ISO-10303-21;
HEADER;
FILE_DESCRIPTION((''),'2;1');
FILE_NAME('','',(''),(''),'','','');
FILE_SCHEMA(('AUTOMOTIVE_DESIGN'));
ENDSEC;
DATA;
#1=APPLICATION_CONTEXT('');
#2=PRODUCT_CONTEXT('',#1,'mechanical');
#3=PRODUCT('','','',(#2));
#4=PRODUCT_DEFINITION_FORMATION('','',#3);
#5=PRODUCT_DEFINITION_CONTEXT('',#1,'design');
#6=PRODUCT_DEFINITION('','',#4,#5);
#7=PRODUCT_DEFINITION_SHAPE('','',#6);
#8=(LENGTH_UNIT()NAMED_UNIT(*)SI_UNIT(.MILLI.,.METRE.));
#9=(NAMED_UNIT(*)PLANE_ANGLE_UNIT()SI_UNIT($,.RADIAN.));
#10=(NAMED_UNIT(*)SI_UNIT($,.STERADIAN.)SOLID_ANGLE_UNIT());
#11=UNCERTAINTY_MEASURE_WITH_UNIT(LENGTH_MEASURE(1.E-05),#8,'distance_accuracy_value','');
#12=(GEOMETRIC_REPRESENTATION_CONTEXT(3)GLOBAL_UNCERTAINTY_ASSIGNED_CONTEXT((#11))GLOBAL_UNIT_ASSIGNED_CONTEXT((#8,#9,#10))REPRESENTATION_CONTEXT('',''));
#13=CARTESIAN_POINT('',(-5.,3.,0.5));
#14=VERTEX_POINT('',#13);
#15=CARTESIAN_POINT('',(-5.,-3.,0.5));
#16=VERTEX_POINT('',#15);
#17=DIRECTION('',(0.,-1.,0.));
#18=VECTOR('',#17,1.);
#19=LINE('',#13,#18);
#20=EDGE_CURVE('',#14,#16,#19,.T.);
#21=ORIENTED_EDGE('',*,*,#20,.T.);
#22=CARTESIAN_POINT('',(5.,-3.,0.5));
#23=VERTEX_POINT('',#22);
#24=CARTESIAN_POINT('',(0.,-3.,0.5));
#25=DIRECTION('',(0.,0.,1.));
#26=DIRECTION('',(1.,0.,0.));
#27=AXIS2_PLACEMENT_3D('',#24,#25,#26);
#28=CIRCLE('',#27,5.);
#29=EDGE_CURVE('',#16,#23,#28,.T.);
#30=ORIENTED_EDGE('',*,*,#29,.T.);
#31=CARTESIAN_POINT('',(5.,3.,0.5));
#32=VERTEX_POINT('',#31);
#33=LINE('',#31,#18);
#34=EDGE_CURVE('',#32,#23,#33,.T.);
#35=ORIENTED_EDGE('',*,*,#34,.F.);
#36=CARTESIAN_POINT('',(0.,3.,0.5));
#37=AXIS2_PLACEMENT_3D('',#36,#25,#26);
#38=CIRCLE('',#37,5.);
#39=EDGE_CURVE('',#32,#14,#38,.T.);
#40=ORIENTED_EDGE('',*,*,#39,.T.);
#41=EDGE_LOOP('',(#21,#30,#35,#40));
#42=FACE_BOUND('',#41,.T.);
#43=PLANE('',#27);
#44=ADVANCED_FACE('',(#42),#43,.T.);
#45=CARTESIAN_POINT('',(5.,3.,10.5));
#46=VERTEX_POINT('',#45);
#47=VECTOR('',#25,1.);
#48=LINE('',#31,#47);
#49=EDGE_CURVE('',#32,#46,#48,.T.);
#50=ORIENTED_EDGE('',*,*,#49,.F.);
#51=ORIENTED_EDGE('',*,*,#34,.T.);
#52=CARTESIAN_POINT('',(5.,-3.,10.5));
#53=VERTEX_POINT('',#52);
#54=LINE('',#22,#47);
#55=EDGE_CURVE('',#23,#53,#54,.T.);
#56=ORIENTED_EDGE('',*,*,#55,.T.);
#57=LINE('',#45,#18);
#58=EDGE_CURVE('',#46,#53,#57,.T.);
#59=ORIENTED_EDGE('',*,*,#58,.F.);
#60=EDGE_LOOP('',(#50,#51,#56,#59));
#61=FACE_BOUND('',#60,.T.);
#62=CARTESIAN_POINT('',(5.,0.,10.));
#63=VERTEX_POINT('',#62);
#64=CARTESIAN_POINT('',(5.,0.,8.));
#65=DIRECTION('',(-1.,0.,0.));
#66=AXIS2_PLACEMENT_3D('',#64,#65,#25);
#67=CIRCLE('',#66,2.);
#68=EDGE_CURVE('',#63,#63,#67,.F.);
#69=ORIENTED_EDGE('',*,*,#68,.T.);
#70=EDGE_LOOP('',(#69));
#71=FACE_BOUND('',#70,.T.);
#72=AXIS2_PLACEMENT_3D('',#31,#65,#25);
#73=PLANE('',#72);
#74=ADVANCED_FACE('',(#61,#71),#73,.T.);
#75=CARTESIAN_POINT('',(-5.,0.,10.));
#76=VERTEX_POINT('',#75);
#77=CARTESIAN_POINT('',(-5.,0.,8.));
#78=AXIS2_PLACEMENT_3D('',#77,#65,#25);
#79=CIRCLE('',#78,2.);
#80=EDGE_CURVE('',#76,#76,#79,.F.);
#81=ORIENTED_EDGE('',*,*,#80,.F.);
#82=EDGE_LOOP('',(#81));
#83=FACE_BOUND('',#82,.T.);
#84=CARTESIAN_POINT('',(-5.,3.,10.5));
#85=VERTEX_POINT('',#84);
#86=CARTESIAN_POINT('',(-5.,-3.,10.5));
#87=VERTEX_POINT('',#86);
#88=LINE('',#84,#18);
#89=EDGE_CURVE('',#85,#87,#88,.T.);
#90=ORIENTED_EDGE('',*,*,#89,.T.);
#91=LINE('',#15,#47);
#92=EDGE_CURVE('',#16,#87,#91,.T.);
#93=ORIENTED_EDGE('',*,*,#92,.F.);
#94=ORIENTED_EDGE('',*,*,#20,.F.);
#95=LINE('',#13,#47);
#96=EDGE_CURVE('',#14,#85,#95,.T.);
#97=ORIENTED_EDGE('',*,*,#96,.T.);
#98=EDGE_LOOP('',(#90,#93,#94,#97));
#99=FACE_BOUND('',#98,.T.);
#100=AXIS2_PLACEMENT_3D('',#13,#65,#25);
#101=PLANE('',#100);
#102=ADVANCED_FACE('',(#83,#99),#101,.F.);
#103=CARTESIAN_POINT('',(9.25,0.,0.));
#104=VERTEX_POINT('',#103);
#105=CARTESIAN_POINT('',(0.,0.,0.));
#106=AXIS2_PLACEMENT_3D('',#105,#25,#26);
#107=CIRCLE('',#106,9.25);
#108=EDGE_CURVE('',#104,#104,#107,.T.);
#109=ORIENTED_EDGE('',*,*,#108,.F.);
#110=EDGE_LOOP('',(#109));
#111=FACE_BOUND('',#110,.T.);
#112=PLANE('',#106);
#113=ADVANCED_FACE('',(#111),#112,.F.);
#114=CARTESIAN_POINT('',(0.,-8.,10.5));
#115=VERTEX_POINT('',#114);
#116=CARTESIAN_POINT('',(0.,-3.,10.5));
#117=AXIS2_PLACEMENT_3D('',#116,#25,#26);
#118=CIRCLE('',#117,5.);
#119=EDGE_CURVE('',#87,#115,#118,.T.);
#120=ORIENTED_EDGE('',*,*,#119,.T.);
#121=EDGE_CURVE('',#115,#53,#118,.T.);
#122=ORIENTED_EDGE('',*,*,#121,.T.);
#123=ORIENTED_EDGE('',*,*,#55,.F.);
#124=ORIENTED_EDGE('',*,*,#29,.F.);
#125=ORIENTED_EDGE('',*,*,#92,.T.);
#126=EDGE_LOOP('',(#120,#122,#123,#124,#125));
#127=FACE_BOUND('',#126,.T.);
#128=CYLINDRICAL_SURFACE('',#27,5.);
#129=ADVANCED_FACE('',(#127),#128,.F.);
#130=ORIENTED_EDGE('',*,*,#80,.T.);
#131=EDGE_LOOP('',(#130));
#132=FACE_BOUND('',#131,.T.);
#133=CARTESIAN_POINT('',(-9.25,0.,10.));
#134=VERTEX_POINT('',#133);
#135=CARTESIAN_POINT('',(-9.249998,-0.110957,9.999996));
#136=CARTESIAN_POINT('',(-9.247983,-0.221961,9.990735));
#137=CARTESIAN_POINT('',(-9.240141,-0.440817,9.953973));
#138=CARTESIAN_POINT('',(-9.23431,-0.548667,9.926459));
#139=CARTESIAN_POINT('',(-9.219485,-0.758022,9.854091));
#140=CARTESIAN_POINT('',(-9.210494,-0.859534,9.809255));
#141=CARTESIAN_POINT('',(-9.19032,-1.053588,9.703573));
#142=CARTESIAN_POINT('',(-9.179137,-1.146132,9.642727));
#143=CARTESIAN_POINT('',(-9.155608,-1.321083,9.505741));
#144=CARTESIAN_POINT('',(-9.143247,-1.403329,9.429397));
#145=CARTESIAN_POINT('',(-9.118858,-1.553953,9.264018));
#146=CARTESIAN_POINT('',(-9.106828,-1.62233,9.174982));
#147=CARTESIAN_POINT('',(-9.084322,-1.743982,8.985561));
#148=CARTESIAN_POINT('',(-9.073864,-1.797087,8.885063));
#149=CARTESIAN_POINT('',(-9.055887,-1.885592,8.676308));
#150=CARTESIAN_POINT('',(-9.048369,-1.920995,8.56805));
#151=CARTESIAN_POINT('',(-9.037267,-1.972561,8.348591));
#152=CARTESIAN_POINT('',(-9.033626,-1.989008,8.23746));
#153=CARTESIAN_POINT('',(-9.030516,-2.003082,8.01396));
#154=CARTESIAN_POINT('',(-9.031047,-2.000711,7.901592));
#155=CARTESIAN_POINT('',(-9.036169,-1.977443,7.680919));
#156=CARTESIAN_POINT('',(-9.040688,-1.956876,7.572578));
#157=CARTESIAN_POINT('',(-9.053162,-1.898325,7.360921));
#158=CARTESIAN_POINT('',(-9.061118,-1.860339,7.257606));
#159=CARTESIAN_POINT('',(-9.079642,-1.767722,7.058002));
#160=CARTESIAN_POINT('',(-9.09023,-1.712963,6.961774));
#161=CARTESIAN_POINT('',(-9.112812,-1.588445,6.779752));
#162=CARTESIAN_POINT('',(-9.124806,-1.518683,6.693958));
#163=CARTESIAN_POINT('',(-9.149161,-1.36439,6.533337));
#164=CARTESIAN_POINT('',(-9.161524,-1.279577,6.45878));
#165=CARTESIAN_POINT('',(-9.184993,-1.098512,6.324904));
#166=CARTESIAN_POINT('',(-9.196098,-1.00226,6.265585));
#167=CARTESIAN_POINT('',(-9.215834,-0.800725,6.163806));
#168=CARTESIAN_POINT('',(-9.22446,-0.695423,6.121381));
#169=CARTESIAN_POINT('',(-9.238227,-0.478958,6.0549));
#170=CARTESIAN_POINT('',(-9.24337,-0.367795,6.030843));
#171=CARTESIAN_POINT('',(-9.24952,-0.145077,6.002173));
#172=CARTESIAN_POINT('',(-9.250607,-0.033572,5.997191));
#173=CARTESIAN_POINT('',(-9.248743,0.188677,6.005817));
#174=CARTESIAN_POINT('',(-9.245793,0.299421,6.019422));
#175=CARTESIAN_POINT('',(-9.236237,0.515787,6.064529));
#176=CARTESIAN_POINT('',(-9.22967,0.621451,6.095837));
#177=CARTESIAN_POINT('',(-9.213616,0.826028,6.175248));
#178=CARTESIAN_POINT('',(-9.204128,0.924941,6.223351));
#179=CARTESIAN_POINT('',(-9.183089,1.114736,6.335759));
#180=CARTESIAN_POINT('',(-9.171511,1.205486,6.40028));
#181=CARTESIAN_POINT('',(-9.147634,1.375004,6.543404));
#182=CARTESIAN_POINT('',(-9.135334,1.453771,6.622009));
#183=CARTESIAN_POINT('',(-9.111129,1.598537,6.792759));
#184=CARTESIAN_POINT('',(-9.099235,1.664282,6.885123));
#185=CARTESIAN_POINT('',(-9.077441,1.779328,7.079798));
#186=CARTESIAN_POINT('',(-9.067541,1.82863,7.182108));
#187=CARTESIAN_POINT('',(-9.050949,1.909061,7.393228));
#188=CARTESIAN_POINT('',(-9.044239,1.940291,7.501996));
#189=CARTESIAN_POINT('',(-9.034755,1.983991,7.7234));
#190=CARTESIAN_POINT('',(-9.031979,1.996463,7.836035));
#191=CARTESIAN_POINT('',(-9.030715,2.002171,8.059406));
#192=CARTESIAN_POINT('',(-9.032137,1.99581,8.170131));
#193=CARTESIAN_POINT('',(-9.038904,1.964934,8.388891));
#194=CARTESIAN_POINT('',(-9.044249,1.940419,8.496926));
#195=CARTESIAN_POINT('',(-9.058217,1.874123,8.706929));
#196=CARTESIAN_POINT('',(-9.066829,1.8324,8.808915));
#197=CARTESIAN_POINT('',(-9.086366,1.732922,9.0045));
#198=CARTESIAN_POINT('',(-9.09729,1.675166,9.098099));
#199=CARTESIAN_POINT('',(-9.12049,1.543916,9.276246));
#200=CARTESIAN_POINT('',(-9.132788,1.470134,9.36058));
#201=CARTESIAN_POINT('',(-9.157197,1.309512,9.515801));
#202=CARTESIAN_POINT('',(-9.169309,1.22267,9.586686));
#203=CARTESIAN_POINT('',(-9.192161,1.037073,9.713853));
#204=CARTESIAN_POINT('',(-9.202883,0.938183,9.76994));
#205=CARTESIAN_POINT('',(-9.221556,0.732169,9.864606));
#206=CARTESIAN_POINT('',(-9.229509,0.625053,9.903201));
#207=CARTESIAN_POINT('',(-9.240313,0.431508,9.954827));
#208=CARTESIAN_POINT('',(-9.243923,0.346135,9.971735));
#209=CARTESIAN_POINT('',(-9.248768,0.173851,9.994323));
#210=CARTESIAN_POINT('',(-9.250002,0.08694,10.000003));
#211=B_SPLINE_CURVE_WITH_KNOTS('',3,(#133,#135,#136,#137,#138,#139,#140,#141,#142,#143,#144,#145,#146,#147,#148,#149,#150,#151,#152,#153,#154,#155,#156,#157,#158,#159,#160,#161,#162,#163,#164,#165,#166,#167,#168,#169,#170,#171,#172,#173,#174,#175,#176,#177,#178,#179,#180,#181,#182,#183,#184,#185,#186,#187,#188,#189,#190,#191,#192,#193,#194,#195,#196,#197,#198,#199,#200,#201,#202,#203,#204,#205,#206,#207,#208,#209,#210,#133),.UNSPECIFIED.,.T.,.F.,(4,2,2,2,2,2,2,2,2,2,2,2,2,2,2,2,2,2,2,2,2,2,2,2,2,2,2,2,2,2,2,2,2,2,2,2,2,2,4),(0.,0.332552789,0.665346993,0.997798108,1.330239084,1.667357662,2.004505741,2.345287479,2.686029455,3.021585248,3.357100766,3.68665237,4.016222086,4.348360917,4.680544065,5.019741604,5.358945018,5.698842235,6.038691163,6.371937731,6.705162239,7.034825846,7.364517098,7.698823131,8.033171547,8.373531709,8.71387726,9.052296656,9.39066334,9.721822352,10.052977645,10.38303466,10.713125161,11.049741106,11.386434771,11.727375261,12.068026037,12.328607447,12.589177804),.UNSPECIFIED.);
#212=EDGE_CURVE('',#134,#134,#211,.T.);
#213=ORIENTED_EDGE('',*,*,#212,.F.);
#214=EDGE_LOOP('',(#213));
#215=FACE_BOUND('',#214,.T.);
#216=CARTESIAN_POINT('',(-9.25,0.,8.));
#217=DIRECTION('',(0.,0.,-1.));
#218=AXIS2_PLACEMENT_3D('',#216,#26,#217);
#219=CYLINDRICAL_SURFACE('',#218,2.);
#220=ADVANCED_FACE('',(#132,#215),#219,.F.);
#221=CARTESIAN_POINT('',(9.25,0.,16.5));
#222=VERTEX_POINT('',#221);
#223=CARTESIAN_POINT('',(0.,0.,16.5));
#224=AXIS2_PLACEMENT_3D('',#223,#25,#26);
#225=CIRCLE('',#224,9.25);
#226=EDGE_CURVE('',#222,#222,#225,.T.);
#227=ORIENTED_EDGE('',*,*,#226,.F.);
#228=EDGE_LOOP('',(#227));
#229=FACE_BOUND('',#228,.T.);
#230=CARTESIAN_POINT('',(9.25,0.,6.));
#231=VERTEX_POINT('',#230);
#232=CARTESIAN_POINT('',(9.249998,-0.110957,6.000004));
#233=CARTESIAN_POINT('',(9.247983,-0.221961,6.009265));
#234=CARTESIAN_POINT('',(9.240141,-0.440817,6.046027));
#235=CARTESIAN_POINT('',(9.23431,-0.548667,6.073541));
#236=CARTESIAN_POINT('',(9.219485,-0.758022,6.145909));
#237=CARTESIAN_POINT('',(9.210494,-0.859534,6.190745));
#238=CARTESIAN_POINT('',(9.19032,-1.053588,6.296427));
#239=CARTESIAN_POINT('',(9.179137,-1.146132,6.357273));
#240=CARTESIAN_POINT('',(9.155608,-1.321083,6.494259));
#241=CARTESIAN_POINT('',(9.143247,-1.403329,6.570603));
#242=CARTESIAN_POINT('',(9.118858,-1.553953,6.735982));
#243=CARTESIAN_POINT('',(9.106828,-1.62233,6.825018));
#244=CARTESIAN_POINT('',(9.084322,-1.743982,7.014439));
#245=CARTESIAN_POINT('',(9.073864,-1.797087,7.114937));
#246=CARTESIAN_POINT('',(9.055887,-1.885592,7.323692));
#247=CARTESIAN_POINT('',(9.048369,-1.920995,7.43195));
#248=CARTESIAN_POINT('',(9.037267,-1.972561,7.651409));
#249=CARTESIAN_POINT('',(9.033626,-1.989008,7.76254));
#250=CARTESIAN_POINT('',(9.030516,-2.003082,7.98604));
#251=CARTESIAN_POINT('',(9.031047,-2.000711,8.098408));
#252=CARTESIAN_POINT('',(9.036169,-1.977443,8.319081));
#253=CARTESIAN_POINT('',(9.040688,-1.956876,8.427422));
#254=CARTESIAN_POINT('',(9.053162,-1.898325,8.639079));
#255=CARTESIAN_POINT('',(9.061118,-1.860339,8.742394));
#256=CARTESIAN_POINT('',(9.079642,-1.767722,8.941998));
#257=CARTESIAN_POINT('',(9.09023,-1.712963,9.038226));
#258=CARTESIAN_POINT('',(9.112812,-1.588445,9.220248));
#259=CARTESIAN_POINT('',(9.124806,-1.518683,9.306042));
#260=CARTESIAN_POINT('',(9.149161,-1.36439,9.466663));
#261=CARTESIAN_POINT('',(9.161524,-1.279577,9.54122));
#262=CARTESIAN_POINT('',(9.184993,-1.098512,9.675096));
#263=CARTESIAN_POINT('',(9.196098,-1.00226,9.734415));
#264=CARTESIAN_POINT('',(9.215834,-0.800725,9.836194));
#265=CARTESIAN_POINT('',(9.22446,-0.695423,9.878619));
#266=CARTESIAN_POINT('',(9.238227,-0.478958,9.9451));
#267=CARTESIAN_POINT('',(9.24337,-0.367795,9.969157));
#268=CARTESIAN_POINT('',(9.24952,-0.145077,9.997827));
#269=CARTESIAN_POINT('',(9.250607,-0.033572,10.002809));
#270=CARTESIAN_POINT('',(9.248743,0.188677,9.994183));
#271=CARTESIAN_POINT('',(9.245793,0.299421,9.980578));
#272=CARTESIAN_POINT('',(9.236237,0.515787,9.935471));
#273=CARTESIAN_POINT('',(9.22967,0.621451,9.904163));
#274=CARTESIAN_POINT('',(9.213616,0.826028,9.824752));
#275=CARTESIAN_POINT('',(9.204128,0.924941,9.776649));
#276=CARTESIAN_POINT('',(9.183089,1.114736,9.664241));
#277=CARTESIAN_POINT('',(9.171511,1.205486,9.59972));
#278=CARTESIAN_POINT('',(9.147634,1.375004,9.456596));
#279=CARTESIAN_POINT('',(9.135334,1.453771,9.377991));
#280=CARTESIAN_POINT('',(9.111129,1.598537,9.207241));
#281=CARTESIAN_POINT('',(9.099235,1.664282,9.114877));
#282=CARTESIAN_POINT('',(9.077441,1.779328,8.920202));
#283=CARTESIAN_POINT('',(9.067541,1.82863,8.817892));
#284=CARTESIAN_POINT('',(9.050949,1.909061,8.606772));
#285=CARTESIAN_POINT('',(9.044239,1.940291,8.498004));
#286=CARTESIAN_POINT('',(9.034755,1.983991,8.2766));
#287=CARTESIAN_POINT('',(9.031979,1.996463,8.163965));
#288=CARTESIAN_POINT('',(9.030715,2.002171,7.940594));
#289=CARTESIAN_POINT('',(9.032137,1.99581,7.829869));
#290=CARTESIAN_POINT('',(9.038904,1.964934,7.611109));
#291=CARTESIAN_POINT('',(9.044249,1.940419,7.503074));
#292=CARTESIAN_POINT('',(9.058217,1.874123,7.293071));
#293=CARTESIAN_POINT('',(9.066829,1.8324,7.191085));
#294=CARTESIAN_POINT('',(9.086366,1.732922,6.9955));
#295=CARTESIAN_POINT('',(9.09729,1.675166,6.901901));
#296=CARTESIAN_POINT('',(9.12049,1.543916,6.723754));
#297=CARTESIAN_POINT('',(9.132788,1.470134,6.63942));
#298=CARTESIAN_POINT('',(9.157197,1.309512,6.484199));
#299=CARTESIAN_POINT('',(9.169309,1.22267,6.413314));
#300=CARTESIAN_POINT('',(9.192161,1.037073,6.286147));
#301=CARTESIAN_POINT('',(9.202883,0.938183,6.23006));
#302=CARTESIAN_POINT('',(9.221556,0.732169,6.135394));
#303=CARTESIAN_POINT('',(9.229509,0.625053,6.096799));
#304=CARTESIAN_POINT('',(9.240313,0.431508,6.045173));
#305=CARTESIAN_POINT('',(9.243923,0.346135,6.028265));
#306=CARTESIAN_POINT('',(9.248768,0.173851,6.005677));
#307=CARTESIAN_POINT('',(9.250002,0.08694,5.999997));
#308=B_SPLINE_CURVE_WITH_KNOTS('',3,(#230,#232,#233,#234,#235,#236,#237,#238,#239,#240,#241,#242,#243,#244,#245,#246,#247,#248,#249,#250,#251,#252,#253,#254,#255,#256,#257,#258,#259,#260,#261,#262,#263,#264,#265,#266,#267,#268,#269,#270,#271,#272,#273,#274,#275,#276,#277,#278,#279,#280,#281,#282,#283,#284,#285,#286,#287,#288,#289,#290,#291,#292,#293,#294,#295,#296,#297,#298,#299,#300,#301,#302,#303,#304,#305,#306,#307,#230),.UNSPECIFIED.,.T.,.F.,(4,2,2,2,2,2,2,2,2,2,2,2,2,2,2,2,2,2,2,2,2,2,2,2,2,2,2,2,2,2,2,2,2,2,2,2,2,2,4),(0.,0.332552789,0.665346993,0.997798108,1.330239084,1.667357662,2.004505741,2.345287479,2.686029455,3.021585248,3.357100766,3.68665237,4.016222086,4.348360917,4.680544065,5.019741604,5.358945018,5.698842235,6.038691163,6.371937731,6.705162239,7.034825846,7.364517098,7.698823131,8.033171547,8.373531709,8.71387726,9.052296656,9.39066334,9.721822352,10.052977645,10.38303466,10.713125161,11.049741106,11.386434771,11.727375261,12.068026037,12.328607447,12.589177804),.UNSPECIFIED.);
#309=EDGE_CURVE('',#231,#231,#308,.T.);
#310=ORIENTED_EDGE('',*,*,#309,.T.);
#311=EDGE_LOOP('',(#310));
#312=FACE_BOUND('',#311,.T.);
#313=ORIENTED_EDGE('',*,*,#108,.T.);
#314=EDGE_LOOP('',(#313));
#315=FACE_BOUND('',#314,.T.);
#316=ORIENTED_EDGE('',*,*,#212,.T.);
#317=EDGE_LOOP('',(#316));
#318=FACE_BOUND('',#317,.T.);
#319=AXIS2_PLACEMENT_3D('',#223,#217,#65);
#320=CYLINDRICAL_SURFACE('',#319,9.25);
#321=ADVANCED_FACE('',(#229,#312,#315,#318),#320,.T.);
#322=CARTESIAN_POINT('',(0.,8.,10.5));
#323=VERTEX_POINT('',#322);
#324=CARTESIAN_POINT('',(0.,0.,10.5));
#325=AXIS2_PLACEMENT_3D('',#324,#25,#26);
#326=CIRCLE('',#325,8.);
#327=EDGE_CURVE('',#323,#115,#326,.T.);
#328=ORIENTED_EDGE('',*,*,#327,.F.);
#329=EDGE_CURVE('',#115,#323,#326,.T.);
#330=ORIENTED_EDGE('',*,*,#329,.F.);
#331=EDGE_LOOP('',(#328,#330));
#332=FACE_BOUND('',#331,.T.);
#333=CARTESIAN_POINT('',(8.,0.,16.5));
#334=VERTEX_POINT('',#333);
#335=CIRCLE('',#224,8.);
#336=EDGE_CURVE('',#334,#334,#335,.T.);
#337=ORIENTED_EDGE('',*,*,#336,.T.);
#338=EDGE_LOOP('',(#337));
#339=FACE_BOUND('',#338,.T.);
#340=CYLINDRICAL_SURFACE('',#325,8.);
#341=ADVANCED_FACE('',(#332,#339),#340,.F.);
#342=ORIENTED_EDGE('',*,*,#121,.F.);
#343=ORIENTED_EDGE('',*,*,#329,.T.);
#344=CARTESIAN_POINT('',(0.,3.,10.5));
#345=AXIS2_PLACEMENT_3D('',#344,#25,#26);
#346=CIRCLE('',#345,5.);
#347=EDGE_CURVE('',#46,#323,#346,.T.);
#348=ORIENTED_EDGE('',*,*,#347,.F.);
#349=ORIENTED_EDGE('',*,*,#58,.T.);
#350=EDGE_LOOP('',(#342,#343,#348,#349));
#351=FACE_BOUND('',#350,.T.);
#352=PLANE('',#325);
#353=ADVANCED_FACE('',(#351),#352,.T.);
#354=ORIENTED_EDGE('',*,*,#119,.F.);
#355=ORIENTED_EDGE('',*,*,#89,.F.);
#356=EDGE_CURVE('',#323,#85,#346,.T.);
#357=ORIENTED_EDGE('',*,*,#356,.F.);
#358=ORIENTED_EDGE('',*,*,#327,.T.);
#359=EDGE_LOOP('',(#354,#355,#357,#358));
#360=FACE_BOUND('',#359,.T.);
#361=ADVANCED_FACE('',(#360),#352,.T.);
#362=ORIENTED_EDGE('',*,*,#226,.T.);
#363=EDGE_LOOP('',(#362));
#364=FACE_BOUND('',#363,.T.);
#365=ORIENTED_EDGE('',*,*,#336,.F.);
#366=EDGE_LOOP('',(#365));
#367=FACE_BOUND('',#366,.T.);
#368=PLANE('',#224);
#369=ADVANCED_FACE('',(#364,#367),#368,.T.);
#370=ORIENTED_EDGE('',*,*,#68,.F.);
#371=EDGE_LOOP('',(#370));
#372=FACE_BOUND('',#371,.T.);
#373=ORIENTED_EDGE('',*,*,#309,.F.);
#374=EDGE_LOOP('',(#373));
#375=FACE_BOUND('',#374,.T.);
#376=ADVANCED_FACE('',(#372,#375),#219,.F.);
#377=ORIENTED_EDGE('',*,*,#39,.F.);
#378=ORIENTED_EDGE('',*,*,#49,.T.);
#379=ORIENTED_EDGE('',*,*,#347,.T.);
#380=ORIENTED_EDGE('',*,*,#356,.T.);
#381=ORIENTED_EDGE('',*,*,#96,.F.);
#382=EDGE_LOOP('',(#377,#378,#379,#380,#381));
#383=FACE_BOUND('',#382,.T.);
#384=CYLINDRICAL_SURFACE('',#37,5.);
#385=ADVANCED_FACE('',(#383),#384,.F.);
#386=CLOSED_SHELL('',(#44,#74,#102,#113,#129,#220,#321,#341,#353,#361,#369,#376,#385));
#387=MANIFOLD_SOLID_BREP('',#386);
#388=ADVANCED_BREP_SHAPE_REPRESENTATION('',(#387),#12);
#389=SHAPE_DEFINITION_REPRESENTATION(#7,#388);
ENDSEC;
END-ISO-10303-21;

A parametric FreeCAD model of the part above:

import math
import FreeCAD as App
import Part
import Sketcher

doc = App.newDocument("Part")
body = doc.addObject("PartDesign::Body", "Body")

sketch1 = doc.addObject("Sketcher::SketchObject", "Sketch")
body.addObject(sketch1)
sketch1.AttachmentSupport = (doc.XY_Plane, [""])
sketch1.MapMode = "FlatFace"
sketch1.addGeometry(Part.Circle(App.Vector(0, 0, 0), App.Vector(0, 0, 1), 9.25), False)
sketch1.addConstraint([
    Sketcher.Constraint("Coincident", 0, 3, -1, 1),
    Sketcher.Constraint("Diameter", 0, 18.5),
])
pad1 = doc.addObject("PartDesign::Pad", "Pad")
body.addObject(pad1)
pad1.Profile = sketch1
pad1.Length = 16.5

sketch2 = doc.addObject("Sketcher::SketchObject", "Sketch001")
body.addObject(sketch2)
sketch2.AttachmentSupport = (doc.YZ_Plane, [""])
sketch2.MapMode = "FlatFace"
sketch2.AttachmentOffset = App.Placement(App.Vector(0, 0, 9.25), App.Rotation())
sketch2.addGeometry(Part.Circle(App.Vector(0, 8, 0), App.Vector(0, 0, 1), 2), False)
sketch2.addConstraint([
    Sketcher.Constraint("PointOnObject", 0, 3, -2),
    Sketcher.Constraint("Diameter", 0, 4.0),
    Sketcher.Constraint("DistanceY", -1, 1, 0, 3, 8.0),
])
pocket1 = doc.addObject("PartDesign::Pocket", "Pocket")
body.addObject(pocket1)
pocket1.Profile = sketch2
pocket1.Type = "ThroughAll"

sketch3 = doc.addObject("Sketcher::SketchObject", "Sketch002")
body.addObject(sketch3)
sketch3.AttachmentSupport = (doc.XY_Plane, [""])
sketch3.MapMode = "FlatFace"
sketch3.AttachmentOffset = App.Placement(App.Vector(0, 0, 16.5), App.Rotation())
sketch3.addGeometry(Part.Circle(App.Vector(0, 0, 0), App.Vector(0, 0, 1), 8), False)
sketch3.addConstraint([
    Sketcher.Constraint("Coincident", 0, 3, -1, 1),
    Sketcher.Constraint("Diameter", 0, 16.0),
])
pocket2 = doc.addObject("PartDesign::Pocket", "Pocket001")
body.addObject(pocket2)
pocket2.Profile = sketch3
pocket2.Length = 6

sketch4 = doc.addObject("Sketcher::SketchObject", "Sketch003")
body.addObject(sketch4)
sketch4.AttachmentSupport = (doc.XY_Plane, [""])
sketch4.MapMode = "FlatFace"
sketch4.AttachmentOffset = App.Placement(App.Vector(0, 0, 10.5), App.Rotation())
sketch4.addGeometry([
    Part.LineSegment(App.Vector(5, -3, 0), App.Vector(5, 3, 0)),
    Part.ArcOfCircle(Part.Circle(App.Vector(0, 3, 0), App.Vector(0, 0, 1), 5), math.radians(0), math.radians(180)),
    Part.LineSegment(App.Vector(-5, 3, 0), App.Vector(-5, -3, 0)),
    Part.ArcOfCircle(Part.Circle(App.Vector(0, -3, 0), App.Vector(0, 0, 1), 5), math.radians(180), math.radians(360)),
], False)
sketch4.addConstraint([
    Sketcher.Constraint("Tangent", 0, 2, 1, 1),
    Sketcher.Constraint("Tangent", 1, 2, 2, 1),
    Sketcher.Constraint("Tangent", 2, 2, 3, 1),
    Sketcher.Constraint("Tangent", 3, 2, 0, 1),
    Sketcher.Constraint("Vertical", 0),
    Sketcher.Constraint("Vertical", 2),
    Sketcher.Constraint("Symmetric", 1, 3, 3, 3, -1, 1),
    Sketcher.Constraint("Radius", 1, 5.0),
    Sketcher.Constraint("DistanceY", 0, 1, 0, 2, 6.0),
])
pocket3 = doc.addObject("PartDesign::Pocket", "Pocket002")
body.addObject(pocket3)
pocket3.Profile = sketch4
pocket3.Length = 10

doc.recompute()
